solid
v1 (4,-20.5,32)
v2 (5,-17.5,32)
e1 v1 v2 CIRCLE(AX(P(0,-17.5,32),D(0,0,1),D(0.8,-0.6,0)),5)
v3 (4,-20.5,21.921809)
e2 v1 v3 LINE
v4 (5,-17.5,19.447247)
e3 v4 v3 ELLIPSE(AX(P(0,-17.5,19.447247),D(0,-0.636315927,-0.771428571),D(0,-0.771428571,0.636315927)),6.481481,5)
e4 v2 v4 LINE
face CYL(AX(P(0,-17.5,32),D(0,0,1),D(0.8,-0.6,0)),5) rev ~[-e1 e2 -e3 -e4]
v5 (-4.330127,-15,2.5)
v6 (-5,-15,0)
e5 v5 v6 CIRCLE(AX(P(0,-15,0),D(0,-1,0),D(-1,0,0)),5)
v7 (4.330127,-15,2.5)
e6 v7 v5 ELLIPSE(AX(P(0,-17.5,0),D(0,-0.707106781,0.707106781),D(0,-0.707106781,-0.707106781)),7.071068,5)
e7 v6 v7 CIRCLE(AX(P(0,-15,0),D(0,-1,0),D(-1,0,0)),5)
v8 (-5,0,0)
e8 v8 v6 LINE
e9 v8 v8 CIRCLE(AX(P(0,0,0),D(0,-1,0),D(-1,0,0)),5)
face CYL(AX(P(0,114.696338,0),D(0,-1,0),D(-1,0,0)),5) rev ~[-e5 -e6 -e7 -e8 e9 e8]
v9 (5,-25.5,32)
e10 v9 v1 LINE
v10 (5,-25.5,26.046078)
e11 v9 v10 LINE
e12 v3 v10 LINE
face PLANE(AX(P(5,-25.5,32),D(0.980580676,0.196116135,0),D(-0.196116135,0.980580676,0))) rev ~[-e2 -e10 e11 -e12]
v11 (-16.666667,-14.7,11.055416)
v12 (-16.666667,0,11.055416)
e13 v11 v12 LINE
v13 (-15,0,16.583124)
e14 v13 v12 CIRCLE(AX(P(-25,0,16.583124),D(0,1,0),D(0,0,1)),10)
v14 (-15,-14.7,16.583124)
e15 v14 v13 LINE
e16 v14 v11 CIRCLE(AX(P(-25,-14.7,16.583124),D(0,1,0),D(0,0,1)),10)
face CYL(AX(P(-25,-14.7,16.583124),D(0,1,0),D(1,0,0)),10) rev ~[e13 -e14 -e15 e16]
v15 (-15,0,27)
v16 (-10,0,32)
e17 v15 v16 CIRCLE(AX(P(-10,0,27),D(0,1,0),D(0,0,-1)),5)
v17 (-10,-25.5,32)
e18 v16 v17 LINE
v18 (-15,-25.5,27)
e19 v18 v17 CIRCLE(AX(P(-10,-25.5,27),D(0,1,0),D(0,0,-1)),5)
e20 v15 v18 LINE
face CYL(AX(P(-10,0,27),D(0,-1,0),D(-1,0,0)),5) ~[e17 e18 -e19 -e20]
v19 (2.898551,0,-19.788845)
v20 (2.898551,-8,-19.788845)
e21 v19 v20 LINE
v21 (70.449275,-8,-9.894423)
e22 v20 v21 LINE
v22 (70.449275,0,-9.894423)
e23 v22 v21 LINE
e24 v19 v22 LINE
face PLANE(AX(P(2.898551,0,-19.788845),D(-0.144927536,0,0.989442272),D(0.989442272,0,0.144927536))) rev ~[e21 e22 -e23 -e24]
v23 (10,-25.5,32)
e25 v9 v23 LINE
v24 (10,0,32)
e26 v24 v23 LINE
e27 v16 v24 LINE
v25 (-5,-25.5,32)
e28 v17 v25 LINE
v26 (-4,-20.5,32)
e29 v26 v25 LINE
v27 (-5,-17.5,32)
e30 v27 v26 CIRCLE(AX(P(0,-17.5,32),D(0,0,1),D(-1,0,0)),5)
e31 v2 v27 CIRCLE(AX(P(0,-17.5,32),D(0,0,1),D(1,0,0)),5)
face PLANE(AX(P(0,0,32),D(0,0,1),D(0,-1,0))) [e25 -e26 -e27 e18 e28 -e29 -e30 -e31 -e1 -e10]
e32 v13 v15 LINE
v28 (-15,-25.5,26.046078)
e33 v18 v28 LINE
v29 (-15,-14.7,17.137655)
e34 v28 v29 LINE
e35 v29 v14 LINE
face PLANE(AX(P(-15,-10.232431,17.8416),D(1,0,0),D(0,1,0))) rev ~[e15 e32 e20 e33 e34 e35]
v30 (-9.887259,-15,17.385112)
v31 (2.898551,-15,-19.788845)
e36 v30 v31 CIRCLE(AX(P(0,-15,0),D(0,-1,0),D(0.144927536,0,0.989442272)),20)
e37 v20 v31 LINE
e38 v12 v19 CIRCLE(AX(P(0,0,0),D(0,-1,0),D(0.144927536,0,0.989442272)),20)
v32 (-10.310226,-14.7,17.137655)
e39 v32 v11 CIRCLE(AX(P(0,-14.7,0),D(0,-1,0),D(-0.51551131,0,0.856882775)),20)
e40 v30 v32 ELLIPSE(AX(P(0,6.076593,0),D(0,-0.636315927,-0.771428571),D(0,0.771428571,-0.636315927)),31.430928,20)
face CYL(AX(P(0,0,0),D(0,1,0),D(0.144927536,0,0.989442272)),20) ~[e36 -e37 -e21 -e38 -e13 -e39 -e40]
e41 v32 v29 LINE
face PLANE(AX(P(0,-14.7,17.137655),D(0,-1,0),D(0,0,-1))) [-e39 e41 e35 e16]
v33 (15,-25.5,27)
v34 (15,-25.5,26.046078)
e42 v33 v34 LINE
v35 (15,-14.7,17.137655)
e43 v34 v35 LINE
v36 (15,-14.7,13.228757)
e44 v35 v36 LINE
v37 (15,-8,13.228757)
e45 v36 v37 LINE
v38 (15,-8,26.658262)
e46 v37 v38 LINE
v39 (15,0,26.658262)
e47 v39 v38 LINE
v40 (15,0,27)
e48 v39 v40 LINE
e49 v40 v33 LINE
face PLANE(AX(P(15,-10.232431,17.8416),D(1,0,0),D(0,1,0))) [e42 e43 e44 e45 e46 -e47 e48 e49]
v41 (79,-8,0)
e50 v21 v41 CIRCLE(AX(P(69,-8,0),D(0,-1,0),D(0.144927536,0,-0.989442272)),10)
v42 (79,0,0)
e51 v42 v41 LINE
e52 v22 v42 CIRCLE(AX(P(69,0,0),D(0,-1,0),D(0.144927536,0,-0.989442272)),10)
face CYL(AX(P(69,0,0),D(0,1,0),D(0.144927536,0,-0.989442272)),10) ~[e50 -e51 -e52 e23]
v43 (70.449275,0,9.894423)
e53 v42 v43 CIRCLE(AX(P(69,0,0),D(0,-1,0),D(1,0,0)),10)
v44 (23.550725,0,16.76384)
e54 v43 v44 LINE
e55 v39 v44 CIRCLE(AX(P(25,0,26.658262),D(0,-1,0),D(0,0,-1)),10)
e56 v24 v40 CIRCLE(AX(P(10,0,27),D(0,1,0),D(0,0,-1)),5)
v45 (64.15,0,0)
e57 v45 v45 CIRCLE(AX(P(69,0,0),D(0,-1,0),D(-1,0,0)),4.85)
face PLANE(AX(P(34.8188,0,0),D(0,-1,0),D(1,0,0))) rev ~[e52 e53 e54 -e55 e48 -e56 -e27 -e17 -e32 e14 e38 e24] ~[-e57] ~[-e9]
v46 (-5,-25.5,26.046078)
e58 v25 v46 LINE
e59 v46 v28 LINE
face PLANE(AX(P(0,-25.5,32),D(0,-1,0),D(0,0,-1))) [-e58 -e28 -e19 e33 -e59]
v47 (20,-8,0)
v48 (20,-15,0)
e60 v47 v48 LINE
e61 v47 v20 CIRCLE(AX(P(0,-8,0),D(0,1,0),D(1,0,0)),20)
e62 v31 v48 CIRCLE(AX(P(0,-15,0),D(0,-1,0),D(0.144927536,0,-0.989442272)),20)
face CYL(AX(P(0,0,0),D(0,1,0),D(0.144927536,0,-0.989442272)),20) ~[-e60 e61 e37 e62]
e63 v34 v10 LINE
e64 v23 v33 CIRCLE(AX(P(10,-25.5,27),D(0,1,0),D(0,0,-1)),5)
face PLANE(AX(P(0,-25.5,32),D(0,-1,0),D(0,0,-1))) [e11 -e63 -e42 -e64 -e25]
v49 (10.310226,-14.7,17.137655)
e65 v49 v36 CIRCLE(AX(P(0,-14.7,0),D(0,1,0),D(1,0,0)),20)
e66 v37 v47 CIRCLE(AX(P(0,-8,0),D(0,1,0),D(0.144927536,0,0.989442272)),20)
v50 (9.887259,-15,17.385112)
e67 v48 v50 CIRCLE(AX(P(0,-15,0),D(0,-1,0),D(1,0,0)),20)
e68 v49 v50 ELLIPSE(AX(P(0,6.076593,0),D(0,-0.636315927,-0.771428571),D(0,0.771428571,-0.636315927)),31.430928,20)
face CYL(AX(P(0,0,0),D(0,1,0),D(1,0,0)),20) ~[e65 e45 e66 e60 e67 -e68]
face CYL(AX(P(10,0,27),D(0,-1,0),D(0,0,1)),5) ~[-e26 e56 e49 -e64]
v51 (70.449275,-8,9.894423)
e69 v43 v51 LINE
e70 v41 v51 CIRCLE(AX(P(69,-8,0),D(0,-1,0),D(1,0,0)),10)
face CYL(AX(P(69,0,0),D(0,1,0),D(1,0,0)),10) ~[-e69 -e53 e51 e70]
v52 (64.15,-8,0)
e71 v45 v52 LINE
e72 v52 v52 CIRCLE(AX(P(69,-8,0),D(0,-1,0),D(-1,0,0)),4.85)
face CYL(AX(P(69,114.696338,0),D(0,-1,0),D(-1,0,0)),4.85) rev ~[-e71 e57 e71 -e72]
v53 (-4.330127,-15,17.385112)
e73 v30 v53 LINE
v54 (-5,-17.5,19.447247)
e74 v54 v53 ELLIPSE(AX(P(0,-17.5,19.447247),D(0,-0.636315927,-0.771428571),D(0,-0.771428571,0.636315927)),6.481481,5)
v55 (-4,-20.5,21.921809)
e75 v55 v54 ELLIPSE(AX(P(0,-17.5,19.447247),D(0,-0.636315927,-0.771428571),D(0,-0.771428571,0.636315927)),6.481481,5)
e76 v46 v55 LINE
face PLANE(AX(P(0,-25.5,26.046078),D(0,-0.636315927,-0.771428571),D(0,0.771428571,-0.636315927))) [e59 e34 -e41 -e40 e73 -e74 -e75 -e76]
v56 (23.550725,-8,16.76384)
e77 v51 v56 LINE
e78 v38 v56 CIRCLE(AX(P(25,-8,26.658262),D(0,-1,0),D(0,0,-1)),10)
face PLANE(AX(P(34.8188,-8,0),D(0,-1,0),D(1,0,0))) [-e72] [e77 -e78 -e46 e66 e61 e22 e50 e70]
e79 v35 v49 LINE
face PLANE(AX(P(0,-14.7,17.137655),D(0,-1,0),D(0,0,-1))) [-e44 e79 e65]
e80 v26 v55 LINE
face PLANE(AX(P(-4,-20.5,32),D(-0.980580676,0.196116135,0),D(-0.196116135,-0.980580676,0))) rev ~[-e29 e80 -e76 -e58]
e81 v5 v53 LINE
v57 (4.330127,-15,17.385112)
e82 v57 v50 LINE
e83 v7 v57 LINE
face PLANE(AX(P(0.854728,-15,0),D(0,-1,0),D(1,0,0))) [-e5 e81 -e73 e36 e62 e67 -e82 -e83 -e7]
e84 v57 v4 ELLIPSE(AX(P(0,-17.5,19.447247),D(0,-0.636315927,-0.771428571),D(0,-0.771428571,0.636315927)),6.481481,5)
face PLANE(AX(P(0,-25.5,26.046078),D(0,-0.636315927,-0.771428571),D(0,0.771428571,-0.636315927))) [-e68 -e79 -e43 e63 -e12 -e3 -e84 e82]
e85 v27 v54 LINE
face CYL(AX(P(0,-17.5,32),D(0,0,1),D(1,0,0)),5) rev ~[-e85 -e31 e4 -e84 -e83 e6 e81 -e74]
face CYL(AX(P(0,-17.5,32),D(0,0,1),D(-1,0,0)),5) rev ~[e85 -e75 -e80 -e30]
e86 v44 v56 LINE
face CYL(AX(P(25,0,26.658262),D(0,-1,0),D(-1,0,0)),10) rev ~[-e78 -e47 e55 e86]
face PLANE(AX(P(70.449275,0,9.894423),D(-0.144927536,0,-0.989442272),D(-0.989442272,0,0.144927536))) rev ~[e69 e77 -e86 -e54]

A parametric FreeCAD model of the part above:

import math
import FreeCAD as App
import Part
import Sketcher
from FreeCAD import Vector
Q = App.Units.Quantity


def edges_at(feature, points):
    """Names of the edges that pass closest to the given points."""
    edges = feature.Shape.Edges
    near = lambda p: min(range(len(edges)), key=lambda i: edges[i].distToShape(Part.Vertex(*p))[0])
    return sorted({f"Edge{near(p) + 1}" for p in points})


def add_polygon(sketch, points):
    """Adds a closed chain of lines whose ends are joined by coincident constraints."""
    first, n = sketch.GeometryCount, len(points)
    for a, b in zip(points, points[1:] + points[:1]):
        sketch.addGeometry(Part.LineSegment(App.Vector(*a, 0), App.Vector(*b, 0)), False)
    for i in range(n):
        sketch.addConstraint(Sketcher.Constraint("Coincident", first + i, 2, first + (i + 1) % n, 1))

doc = App.newDocument("Part")
params = doc.addObject("Spreadsheet::Sheet", "Params")
for row, (alias, value) in enumerate([
    ("sketch1_radius", "20 mm"),
    ("pad1_length", "15 mm"),
    ("sketch2_radius", "20 mm"),
    ("sketch2_radius2", "10 mm"),
    ("pad2_length", "8 mm"),
    ("sketch3_height", "32 mm"),
    ("sketch3_length", "14 mm"),
    ("sketch3_width", "14.7 mm"),
    ("sketch3_width2", "25.5 mm"),
    ("pad3_length", "30 mm"),
    ("sketch4_diameter", "9.7 mm"),
    ("hole_diameter", "9.7 mm"),
    ("sketch5_diameter", "10 mm"),
    ("hole2_diameter", "10 mm"),
    ("sketch6_radius", "5 mm"),
    ("pocket1_length", "29.501 mm"),
    ("fillet_radius", "5 mm"),
    ("fillet2_radius", "10 mm"),
], start=1):
    params.set(f"A{row}", alias)
    params.set(f"B{row}", "=" + value)
    params.setAlias(f"B{row}", alias)

body = doc.addObject("PartDesign::Body", "Body")

# Sketch on XZ plane
sketch1 = doc.addObject("Sketcher::SketchObject", "Sketch")
body.addObject(sketch1)
sketch1.AttachmentSupport = (doc.XZ_Plane, [""])
sketch1.MapMode = "FlatFace"
sketch1.addGeometry([
    Part.ArcOfCircle(Part.Circle(Vector(0, 0, 0), Vector(0, 0, 1), 20), math.radians(-82), math.radians(0)),
    Part.ArcOfCircle(Part.Circle(Vector(0, 0, 0), Vector(0, 0, 1), 20), math.radians(0), math.radians(82)),
    Part.ArcOfCircle(Part.Circle(Vector(0, 0, 0), Vector(0, 0, 1), 20), math.radians(82), math.radians(278)),
], False)
sketch1.addConstraint([
    Sketcher.Constraint("Tangent", 0, 2, 1, 1),
    Sketcher.Constraint("Tangent", 1, 2, 2, 1),
    Sketcher.Constraint("Tangent", 2, 2, 0, 1),
    Sketcher.Constraint("Coincident", 0, 3, -1, 1),
    Sketcher.Constraint("PointOnObject", 0, 2, -1),
    Sketcher.Constraint("Vertical", 1, 2, 2, 2),
    Sketcher.Constraint("Radius", 0, Q("20 mm")),
    Sketcher.Constraint("DistanceX", -1, 1, 1, 2, Q("2.898551 mm")),
])
sketch1.setExpression("Constraints[6]", "Params.sketch1_radius")
pad1 = doc.addObject("PartDesign::Pad", "Pad")
body.addObject(pad1)
pad1.Profile = sketch1
pad1.setExpression("Length", "Params.pad1_length")

# Sketch on XZ plane
sketch2 = doc.addObject("Sketcher::SketchObject", "Sketch001")
body.addObject(sketch2)
sketch2.AttachmentSupport = (doc.XZ_Plane, [""])
sketch2.MapMode = "FlatFace"
sketch2.addGeometry([
    Part.ArcOfCircle(Part.Circle(Vector(0, 0, 0), Vector(0, 0, 1), 20), math.radians(0), math.radians(82)),  # 0
    Part.ArcOfCircle(Part.Circle(Vector(0, 0, 0), Vector(0, 0, 1), 20), math.radians(-82), math.radians(0)),  # 1
    Part.LineSegment(Vector(3, -20, 0), Vector(70, -10, 0)),  # 2
    Part.ArcOfCircle(Part.Circle(Vector(69, 0, 0), Vector(0, 0, 1), 10), math.radians(-82), math.radians(0)),  # 3
    Part.ArcOfCircle(Part.Circle(Vector(69, 0, 0), Vector(0, 0, 1), 10), math.radians(0), math.radians(82)),  # 4
    Part.LineSegment(Vector(70, 10, 0), Vector(3, 20, 0)),  # 5
], False)
sketch2.addConstraint([
    Sketcher.Constraint("Tangent", 0, 1, 1, 2),
    Sketcher.Constraint("Tangent", 1, 1, 2, 1),
    Sketcher.Constraint("Tangent", 2, 2, 3, 1),
    Sketcher.Constraint("Tangent", 3, 2, 4, 1),
    Sketcher.Constraint("Tangent", 4, 2, 5, 1),
    Sketcher.Constraint("Tangent", 5, 2, 0, 2),
    Sketcher.Constraint("Coincident", 0, 3, -1, 1),
    Sketcher.Constraint("Equal", 0, 1),
    Sketcher.Constraint("Equal", 3, 4),
    Sketcher.Constraint("PointOnObject", 3, 3, -1),
    Sketcher.Constraint("PointOnObject", 0, 1, -1),
    Sketcher.Constraint("PointOnObject", 3, 2, -1),
    Sketcher.Constraint("Radius", 0, Q("20 mm")),
    Sketcher.Constraint("Radius", 3, Q("10 mm")),
    Sketcher.Constraint("DistanceX", -1, 1, 3, 3, Q("69 mm")),
])
sketch2.setExpression("Constraints[12]", "Params.sketch2_radius")
sketch2.setExpression("Constraints[13]", "Params.sketch2_radius2")
pad2 = doc.addObject("PartDesign::Pad", "Pad001")
body.addObject(pad2)
pad2.Profile = sketch2
pad2.setExpression("Length", "Params.pad2_length")

# Sketch on YZ plane
sketch3 = doc.addObject("Sketcher::SketchObject", "Sketch002")
body.addObject(sketch3)
sketch3.AttachmentSupport = (doc.YZ_Plane, [""])
sketch3.MapMode = "FlatFace"
add_polygon(sketch3, [(-15, 0), (0, 0), (0, 32), (-26, 32), (-26, 26), (-15, 17)])  # lines 0-5
sketch3.addConstraint([
    Sketcher.Constraint("Horizontal", 0),
    Sketcher.Constraint("Vertical", 1),
    Sketcher.Constraint("Horizontal", 2),
    Sketcher.Constraint("Vertical", 3),
    Sketcher.Constraint("Vertical", 5),
    Sketcher.Constraint("Coincident", 0, 2, -1, 1),
    Sketcher.Constraint("DistanceY", 1, 1, 1, 2, Q("32 mm")),
    Sketcher.Constraint("Distance", 4, Q("14 mm")),
    Sketcher.Constraint("DistanceX", 0, 1, 0, 2, Q("14.7 mm")),
    Sketcher.Constraint("DistanceX", 2, 2, 2, 1, Q("25.5 mm")),
    Sketcher.Constraint("DistanceY", 3, 2, 3, 1, Q("5.953922 mm")),
])
sketch3.setExpression("Constraints[12]", "Params.sketch3_height")
sketch3.setExpression("Constraints[13]", "Params.sketch3_length")
sketch3.setExpression("Constraints[14]", "Params.sketch3_width")
sketch3.setExpression("Constraints[15]", "Params.sketch3_width2")
pad3 = doc.addObject("PartDesign::Pad", "Pad002")
body.addObject(pad3)
pad3.Profile = sketch3
pad3.setExpression("Length", "Params.pad3_length")
pad3.Midplane = True

# Sketch on XZ plane
sketch4 = doc.addObject("Sketcher::SketchObject", "Sketch003")
body.addObject(sketch4)
sketch4.AttachmentSupport = (doc.XZ_Plane, [""])
sketch4.MapMode = "FlatFace"
sketch4.addGeometry(Part.Circle(Vector(69, 0, 0), Vector(0, 0, 1), 4.8), False)
sketch4.addConstraint([
    Sketcher.Constraint("PointOnObject", 0, 3, -1),
    Sketcher.Constraint("Diameter", 0, Q("9.7 mm")),
    Sketcher.Constraint("DistanceX", -1, 1, 0, 3, Q("69 mm")),
])
sketch4.setExpression("Constraints[1]", "Params.sketch4_diameter")
doc.recompute()
hole = doc.addObject("PartDesign::Hole", "Hole")
body.addObject(hole)
hole.Profile = sketch4
hole.ThreadType = "None"
hole.setExpression("Diameter", "Params.hole_diameter")
hole.DepthType = "ThroughAll"
hole.Reversed = True

# Sketch on XZ plane
sketch5 = doc.addObject("Sketcher::SketchObject", "Sketch004")
body.addObject(sketch5)
sketch5.AttachmentSupport = (doc.XZ_Plane, [""])
sketch5.MapMode = "FlatFace"
sketch5.addGeometry(Part.Circle(Vector(0, 0, 0), Vector(0, 0, 1), 5), False)
sketch5.addConstraint([
    Sketcher.Constraint("Coincident", 0, 3, -1, 1),
    Sketcher.Constraint("Diameter", 0, Q("10 mm")),
])
sketch5.setExpression("Constraints[1]", "Params.sketch5_diameter")
doc.recompute()
hole2 = doc.addObject("PartDesign::Hole", "Hole001")
body.addObject(hole2)
hole2.Profile = sketch5
hole2.ThreadType = "None"
hole2.setExpression("Diameter", "Params.hole2_diameter")
hole2.DepthType = "ThroughAll"
hole2.Reversed = True

# Sketch on XY plane
sketch6 = doc.addObject("Sketcher::SketchObject", "Sketch005")
body.addObject(sketch6)
sketch6.AttachmentSupport = (doc.XY_Plane, [""])
sketch6.MapMode = "FlatFace"
sketch6.AttachmentOffset = App.Placement(Vector(0, 0, 32), App.Rotation())
sketch6.addGeometry([
    Part.LineSegment(Vector(-5, -25.5, 0), Vector(5, -25.5, 0)),  # 0
    Part.LineSegment(Vector(5, -25.5, 0), Vector(4, -20.5, 0)),  # 1
    Part.ArcOfCircle(Part.Circle(Vector(0, -17.5, 0), Vector(0, 0, 1), 5), math.radians(-37), math.radians(0)),  # 2
    Part.ArcOfCircle(Part.Circle(Vector(0, -17.5, 0), Vector(0, 0, 1), 5), math.radians(0), math.radians(180)),  # 3
    Part.ArcOfCircle(Part.Circle(Vector(0, -17.5, 0), Vector(0, 0, 1), 5), math.radians(180), math.radians(217)),  # 4
    Part.LineSegment(Vector(-4, -20.5, 0), Vector(-5, -25.5, 0)),  # 5
], False)
sketch6.addConstraint([
    Sketcher.Constraint("Coincident", 0, 2, 1, 1),
    Sketcher.Constraint("Coincident", 1, 2, 2, 1),
    Sketcher.Constraint("Tangent", 2, 2, 3, 1),
    Sketcher.Constraint("Tangent", 3, 2, 4, 1),
    Sketcher.Constraint("Coincident", 4, 2, 5, 1),
    Sketcher.Constraint("Coincident", 5, 2, 0, 1),
    Sketcher.Constraint("Horizontal", 0),
    Sketcher.Constraint("Equal", 2, 3),
    Sketcher.Constraint("Equal", 3, 4),
    Sketcher.Constraint("Symmetric", 2, 2, 3, 2, -2),
    Sketcher.Constraint("Horizontal", 4, 3, 2, 2),
    Sketcher.Constraint("Horizontal", 1, 2, 4, 2),
    Sketcher.Constraint("Vertical", 0, 2, 2, 2),
    Sketcher.Constraint("Vertical", 3, 2, 5, 2),
    Sketcher.Constraint("Radius", 2, Q("5 mm")),
    Sketcher.Constraint("DistanceX", -1, 1, 1, 2, Q("4 mm")),
    Sketcher.Constraint("DistanceY", 0, 2, 2, 3, Q("8 mm")),
    Sketcher.Constraint("DistanceY", 2, 3, -1, 1, Q("17.5 mm")),
])
sketch6.setExpression("Constraints[14]", "Params.sketch6_radius")
pocket1 = doc.addObject("PartDesign::Pocket", "Pocket")
body.addObject(pocket1)
pocket1.Profile = sketch6
pocket1.setExpression("Length", "Params.pocket1_length")
doc.recompute()

fillet = doc.addObject("PartDesign::Fillet", "Fillet")
body.addObject(fillet)
fillet.Base = (pocket1, edges_at(pocket1, [(15, -12.75, 32), (-15, -12.75, 32)]))
fillet.setExpression("Radius", "Params.fillet_radius")
doc.recompute()

fillet2 = doc.addObject("PartDesign::Fillet", "Fillet001")
body.addObject(fillet2)
fillet2.Base = (fillet, edges_at(fillet, [(15, -4, 18.016), (-15, -7.35, 13.229)]))
fillet2.setExpression("Radius", "Params.fillet2_radius")

doc.recompute()
